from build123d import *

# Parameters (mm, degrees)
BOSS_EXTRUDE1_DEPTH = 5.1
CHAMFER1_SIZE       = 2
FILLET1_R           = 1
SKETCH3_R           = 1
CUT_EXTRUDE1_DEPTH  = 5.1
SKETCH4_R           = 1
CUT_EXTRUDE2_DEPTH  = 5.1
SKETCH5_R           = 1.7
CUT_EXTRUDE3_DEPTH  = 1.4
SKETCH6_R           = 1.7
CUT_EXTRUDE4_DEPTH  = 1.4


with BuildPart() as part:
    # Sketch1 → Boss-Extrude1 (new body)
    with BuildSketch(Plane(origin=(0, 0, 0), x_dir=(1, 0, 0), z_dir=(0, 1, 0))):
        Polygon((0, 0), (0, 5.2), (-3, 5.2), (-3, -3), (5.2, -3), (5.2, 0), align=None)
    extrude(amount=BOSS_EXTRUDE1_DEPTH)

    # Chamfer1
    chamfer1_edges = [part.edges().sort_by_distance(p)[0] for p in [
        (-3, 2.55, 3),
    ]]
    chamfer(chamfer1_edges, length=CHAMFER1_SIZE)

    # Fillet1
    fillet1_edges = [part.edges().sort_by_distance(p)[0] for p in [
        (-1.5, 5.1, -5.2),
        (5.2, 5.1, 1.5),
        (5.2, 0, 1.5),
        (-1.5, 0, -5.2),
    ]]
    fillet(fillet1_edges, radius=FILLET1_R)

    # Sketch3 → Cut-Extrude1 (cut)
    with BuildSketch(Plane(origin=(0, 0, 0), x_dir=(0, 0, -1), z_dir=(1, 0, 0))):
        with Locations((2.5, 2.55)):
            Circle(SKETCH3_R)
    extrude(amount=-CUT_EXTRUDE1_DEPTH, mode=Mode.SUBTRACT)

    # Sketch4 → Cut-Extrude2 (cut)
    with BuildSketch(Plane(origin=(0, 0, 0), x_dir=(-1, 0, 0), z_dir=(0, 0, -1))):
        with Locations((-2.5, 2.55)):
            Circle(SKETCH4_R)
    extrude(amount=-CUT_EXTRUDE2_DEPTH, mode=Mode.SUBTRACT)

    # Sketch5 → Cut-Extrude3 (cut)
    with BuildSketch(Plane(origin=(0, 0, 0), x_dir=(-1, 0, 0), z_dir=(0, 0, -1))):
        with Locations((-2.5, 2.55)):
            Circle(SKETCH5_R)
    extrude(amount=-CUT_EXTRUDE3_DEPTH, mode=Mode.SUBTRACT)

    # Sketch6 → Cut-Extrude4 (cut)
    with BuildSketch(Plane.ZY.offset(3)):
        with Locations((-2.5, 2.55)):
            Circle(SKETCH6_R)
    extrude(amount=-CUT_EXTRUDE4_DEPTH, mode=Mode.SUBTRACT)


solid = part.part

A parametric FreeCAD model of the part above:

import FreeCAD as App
import Part
import Sketcher

V = App.Vector


def edges_at(feature, points):
    """Names of the edges that pass closest to the given points."""
    edges = feature.Shape.Edges
    near = lambda p: min(range(len(edges)), key=lambda i: edges[i].distToShape(Part.Vertex(*p))[0])
    return sorted({f"Edge{near(p) + 1}" for p in points})


def add_polygon(sketch, points):
    """Adds a closed chain of lines whose ends are joined by coincident constraints."""
    first, n = sketch.GeometryCount, len(points)
    for a, b in zip(points, points[1:] + points[:1]):
        sketch.addGeometry(Part.LineSegment(App.Vector(*a, 0), App.Vector(*b, 0)), False)
    for i in range(n):
        sketch.addConstraint(Sketcher.Constraint("Coincident", first + i, 2, first + (i + 1) % n, 1))

doc = App.newDocument("Part")
params = doc.addObject("Spreadsheet::Sheet", "Params")
for row, (alias, value) in enumerate([
    ("sketch1_width", "3 mm"),
    ("sketch1_width2", "8.2 mm"),
    ("pad1_length", "5.1 mm"),
    ("chamfer_size", "2 mm"),
    ("fillet_radius", "1 mm"),
    ("sketch2_diameter", "2 mm"),
    ("pocket1_length", "5.1 mm"),
    ("sketch3_diameter", "2 mm"),
    ("pocket2_length", "5.1 mm"),
    ("sketch4_diameter", "3.4 mm"),
    ("pocket3_length", "1.4 mm"),
    ("sketch5_diameter", "3.4 mm"),
    ("pocket4_length", "1.4 mm"),
], start=1):
    params.set(f"A{row}", alias)
    params.set(f"B{row}", "=" + value)
    params.setAlias(f"B{row}", alias)

body = doc.addObject("PartDesign::Body", "Body")

# Sketch on XZ plane
sketch1 = doc.addObject("Sketcher::SketchObject", "Sketch")
body.addObject(sketch1)
sketch1.AttachmentSupport = (doc.XZ_Plane, [""])
sketch1.MapMode = "FlatFace"
add_polygon(sketch1, [(0, 0), (0, -5.2), (-3, -5.2), (-3, 3), (5.2, 3), (5.2, 0)])  # lines 0-5
sketch1.addConstraint([
    Sketcher.Constraint("Vertical", 0),
    Sketcher.Constraint("Horizontal", 1),
    Sketcher.Constraint("Vertical", 2),
    Sketcher.Constraint("Horizontal", 3),
    Sketcher.Constraint("Vertical", 4),
    Sketcher.Constraint("Horizontal", 5),
    Sketcher.Constraint("Coincident", 5, 2, -1, 1),
    Sketcher.Constraint("Equal", 5, 0),
    Sketcher.Constraint("Equal", 3, 2),
    Sketcher.Constraint("DistanceX", 1, 2, 1, 1, 3.0),
    Sketcher.Constraint("DistanceX", 3, 1, 3, 2, 8.2),
])
sketch1.setExpression("Constraints[15]", "Params.sketch1_width")
sketch1.setExpression("Constraints[16]", "Params.sketch1_width2")
pad1 = doc.addObject("PartDesign::Pad", "Pad")
body.addObject(pad1)
pad1.Profile = sketch1
pad1.setExpression("Length", "Params.pad1_length")
pad1.Reversed = True
doc.recompute()

chamfer = doc.addObject("PartDesign::Chamfer", "Chamfer")
body.addObject(chamfer)
chamfer.Base = (pad1, edges_at(pad1, [(-3, 2.55, 3)]))
chamfer.setExpression("Size", "Params.chamfer_size")
doc.recompute()

fillet = doc.addObject("PartDesign::Fillet", "Fillet")
body.addObject(fillet)
fillet.Base = (chamfer, edges_at(chamfer, [
    (-1.5, 5.1, -5.2),
    (5.2, 5.1, 1.5),
    (5.2, 0, 1.5),
    (-1.5, 0, -5.2),
]))
fillet.setExpression("Radius", "Params.fillet_radius")

# Sketch on YZ plane
sketch2 = doc.addObject("Sketcher::SketchObject", "Sketch001")
body.addObject(sketch2)
sketch2.AttachmentSupport = (doc.YZ_Plane, [""])
sketch2.MapMode = "FlatFace"
sketch2.addGeometry(Part.Circle(V(2.5, -2.5, 0), V(0, 0, 1), 1), False)
sketch2.addConstraint([
    Sketcher.Constraint("Diameter", 0, 2.0),
    Sketcher.Constraint("DistanceY", 0, 3, -1, 1, 2.5),
    Sketcher.Constraint("DistanceX", -1, 1, 0, 3, 2.55),
])
sketch2.setExpression("Constraints[0]", "Params.sketch2_diameter")
pocket1 = doc.addObject("PartDesign::Pocket", "Pocket")
body.addObject(pocket1)
pocket1.Profile = sketch2
pocket1.setExpression("Length", "Params.pocket1_length")

# Sketch on XY plane
sketch3 = doc.addObject("Sketcher::SketchObject", "Sketch002")
body.addObject(sketch3)
sketch3.AttachmentSupport = (doc.XY_Plane, [""])
sketch3.MapMode = "FlatFace"
sketch3.addGeometry(Part.Circle(V(2.5, 2.5, 0), V(0, 0, 1), 1), False)
sketch3.addConstraint([
    Sketcher.Constraint("Diameter", 0, 2.0),
    Sketcher.Constraint("DistanceX", -1, 1, 0, 3, 2.5),
    Sketcher.Constraint("DistanceY", -1, 1, 0, 3, 2.55),
])
sketch3.setExpression("Constraints[0]", "Params.sketch3_diameter")
pocket2 = doc.addObject("PartDesign::Pocket", "Pocket001")
body.addObject(pocket2)
pocket2.Profile = sketch3
pocket2.setExpression("Length", "Params.pocket2_length")
pocket2.Reversed = True

# Sketch on XY plane
sketch4 = doc.addObject("Sketcher::SketchObject", "Sketch003")
body.addObject(sketch4)
sketch4.AttachmentSupport = (doc.XY_Plane, [""])
sketch4.MapMode = "FlatFace"
sketch4.addGeometry(Part.Circle(V(2.5, 2.5, 0), V(0, 0, 1), 1.7), False)
sketch4.addConstraint([
    Sketcher.Constraint("Diameter", 0, 3.4),
    Sketcher.Constraint("DistanceX", -1, 1, 0, 3, 2.5),
    Sketcher.Constraint("DistanceY", -1, 1, 0, 3, 2.55),
])
sketch4.setExpression("Constraints[0]", "Params.sketch4_diameter")
pocket3 = doc.addObject("PartDesign::Pocket", "Pocket002")
body.addObject(pocket3)
pocket3.Profile = sketch4
pocket3.setExpression("Length", "Params.pocket3_length")
pocket3.Reversed = True

# Sketch on YZ plane
sketch5 = doc.addObject("Sketcher::SketchObject", "Sketch004")
body.addObject(sketch5)
sketch5.AttachmentSupport = (doc.YZ_Plane, [""])
sketch5.MapMode = "FlatFace"
sketch5.AttachmentOffset = App.Placement(V(0, 0, -3), App.Rotation())
sketch5.addGeometry(Part.Circle(V(2.5, -2.5, 0), V(0, 0, 1), 1.7), False)
sketch5.addConstraint([
    Sketcher.Constraint("Diameter", 0, 3.4),
    Sketcher.Constraint("DistanceY", 0, 3, -1, 1, 2.5),
    Sketcher.Constraint("DistanceX", -1, 1, 0, 3, 2.55),
])
sketch5.setExpression("Constraints[0]", "Params.sketch5_diameter")
pocket4 = doc.addObject("PartDesign::Pocket", "Pocket003")
body.addObject(pocket4)
pocket4.Profile = sketch5
pocket4.setExpression("Length", "Params.pocket4_length")
pocket4.Reversed = True

doc.recompute()
